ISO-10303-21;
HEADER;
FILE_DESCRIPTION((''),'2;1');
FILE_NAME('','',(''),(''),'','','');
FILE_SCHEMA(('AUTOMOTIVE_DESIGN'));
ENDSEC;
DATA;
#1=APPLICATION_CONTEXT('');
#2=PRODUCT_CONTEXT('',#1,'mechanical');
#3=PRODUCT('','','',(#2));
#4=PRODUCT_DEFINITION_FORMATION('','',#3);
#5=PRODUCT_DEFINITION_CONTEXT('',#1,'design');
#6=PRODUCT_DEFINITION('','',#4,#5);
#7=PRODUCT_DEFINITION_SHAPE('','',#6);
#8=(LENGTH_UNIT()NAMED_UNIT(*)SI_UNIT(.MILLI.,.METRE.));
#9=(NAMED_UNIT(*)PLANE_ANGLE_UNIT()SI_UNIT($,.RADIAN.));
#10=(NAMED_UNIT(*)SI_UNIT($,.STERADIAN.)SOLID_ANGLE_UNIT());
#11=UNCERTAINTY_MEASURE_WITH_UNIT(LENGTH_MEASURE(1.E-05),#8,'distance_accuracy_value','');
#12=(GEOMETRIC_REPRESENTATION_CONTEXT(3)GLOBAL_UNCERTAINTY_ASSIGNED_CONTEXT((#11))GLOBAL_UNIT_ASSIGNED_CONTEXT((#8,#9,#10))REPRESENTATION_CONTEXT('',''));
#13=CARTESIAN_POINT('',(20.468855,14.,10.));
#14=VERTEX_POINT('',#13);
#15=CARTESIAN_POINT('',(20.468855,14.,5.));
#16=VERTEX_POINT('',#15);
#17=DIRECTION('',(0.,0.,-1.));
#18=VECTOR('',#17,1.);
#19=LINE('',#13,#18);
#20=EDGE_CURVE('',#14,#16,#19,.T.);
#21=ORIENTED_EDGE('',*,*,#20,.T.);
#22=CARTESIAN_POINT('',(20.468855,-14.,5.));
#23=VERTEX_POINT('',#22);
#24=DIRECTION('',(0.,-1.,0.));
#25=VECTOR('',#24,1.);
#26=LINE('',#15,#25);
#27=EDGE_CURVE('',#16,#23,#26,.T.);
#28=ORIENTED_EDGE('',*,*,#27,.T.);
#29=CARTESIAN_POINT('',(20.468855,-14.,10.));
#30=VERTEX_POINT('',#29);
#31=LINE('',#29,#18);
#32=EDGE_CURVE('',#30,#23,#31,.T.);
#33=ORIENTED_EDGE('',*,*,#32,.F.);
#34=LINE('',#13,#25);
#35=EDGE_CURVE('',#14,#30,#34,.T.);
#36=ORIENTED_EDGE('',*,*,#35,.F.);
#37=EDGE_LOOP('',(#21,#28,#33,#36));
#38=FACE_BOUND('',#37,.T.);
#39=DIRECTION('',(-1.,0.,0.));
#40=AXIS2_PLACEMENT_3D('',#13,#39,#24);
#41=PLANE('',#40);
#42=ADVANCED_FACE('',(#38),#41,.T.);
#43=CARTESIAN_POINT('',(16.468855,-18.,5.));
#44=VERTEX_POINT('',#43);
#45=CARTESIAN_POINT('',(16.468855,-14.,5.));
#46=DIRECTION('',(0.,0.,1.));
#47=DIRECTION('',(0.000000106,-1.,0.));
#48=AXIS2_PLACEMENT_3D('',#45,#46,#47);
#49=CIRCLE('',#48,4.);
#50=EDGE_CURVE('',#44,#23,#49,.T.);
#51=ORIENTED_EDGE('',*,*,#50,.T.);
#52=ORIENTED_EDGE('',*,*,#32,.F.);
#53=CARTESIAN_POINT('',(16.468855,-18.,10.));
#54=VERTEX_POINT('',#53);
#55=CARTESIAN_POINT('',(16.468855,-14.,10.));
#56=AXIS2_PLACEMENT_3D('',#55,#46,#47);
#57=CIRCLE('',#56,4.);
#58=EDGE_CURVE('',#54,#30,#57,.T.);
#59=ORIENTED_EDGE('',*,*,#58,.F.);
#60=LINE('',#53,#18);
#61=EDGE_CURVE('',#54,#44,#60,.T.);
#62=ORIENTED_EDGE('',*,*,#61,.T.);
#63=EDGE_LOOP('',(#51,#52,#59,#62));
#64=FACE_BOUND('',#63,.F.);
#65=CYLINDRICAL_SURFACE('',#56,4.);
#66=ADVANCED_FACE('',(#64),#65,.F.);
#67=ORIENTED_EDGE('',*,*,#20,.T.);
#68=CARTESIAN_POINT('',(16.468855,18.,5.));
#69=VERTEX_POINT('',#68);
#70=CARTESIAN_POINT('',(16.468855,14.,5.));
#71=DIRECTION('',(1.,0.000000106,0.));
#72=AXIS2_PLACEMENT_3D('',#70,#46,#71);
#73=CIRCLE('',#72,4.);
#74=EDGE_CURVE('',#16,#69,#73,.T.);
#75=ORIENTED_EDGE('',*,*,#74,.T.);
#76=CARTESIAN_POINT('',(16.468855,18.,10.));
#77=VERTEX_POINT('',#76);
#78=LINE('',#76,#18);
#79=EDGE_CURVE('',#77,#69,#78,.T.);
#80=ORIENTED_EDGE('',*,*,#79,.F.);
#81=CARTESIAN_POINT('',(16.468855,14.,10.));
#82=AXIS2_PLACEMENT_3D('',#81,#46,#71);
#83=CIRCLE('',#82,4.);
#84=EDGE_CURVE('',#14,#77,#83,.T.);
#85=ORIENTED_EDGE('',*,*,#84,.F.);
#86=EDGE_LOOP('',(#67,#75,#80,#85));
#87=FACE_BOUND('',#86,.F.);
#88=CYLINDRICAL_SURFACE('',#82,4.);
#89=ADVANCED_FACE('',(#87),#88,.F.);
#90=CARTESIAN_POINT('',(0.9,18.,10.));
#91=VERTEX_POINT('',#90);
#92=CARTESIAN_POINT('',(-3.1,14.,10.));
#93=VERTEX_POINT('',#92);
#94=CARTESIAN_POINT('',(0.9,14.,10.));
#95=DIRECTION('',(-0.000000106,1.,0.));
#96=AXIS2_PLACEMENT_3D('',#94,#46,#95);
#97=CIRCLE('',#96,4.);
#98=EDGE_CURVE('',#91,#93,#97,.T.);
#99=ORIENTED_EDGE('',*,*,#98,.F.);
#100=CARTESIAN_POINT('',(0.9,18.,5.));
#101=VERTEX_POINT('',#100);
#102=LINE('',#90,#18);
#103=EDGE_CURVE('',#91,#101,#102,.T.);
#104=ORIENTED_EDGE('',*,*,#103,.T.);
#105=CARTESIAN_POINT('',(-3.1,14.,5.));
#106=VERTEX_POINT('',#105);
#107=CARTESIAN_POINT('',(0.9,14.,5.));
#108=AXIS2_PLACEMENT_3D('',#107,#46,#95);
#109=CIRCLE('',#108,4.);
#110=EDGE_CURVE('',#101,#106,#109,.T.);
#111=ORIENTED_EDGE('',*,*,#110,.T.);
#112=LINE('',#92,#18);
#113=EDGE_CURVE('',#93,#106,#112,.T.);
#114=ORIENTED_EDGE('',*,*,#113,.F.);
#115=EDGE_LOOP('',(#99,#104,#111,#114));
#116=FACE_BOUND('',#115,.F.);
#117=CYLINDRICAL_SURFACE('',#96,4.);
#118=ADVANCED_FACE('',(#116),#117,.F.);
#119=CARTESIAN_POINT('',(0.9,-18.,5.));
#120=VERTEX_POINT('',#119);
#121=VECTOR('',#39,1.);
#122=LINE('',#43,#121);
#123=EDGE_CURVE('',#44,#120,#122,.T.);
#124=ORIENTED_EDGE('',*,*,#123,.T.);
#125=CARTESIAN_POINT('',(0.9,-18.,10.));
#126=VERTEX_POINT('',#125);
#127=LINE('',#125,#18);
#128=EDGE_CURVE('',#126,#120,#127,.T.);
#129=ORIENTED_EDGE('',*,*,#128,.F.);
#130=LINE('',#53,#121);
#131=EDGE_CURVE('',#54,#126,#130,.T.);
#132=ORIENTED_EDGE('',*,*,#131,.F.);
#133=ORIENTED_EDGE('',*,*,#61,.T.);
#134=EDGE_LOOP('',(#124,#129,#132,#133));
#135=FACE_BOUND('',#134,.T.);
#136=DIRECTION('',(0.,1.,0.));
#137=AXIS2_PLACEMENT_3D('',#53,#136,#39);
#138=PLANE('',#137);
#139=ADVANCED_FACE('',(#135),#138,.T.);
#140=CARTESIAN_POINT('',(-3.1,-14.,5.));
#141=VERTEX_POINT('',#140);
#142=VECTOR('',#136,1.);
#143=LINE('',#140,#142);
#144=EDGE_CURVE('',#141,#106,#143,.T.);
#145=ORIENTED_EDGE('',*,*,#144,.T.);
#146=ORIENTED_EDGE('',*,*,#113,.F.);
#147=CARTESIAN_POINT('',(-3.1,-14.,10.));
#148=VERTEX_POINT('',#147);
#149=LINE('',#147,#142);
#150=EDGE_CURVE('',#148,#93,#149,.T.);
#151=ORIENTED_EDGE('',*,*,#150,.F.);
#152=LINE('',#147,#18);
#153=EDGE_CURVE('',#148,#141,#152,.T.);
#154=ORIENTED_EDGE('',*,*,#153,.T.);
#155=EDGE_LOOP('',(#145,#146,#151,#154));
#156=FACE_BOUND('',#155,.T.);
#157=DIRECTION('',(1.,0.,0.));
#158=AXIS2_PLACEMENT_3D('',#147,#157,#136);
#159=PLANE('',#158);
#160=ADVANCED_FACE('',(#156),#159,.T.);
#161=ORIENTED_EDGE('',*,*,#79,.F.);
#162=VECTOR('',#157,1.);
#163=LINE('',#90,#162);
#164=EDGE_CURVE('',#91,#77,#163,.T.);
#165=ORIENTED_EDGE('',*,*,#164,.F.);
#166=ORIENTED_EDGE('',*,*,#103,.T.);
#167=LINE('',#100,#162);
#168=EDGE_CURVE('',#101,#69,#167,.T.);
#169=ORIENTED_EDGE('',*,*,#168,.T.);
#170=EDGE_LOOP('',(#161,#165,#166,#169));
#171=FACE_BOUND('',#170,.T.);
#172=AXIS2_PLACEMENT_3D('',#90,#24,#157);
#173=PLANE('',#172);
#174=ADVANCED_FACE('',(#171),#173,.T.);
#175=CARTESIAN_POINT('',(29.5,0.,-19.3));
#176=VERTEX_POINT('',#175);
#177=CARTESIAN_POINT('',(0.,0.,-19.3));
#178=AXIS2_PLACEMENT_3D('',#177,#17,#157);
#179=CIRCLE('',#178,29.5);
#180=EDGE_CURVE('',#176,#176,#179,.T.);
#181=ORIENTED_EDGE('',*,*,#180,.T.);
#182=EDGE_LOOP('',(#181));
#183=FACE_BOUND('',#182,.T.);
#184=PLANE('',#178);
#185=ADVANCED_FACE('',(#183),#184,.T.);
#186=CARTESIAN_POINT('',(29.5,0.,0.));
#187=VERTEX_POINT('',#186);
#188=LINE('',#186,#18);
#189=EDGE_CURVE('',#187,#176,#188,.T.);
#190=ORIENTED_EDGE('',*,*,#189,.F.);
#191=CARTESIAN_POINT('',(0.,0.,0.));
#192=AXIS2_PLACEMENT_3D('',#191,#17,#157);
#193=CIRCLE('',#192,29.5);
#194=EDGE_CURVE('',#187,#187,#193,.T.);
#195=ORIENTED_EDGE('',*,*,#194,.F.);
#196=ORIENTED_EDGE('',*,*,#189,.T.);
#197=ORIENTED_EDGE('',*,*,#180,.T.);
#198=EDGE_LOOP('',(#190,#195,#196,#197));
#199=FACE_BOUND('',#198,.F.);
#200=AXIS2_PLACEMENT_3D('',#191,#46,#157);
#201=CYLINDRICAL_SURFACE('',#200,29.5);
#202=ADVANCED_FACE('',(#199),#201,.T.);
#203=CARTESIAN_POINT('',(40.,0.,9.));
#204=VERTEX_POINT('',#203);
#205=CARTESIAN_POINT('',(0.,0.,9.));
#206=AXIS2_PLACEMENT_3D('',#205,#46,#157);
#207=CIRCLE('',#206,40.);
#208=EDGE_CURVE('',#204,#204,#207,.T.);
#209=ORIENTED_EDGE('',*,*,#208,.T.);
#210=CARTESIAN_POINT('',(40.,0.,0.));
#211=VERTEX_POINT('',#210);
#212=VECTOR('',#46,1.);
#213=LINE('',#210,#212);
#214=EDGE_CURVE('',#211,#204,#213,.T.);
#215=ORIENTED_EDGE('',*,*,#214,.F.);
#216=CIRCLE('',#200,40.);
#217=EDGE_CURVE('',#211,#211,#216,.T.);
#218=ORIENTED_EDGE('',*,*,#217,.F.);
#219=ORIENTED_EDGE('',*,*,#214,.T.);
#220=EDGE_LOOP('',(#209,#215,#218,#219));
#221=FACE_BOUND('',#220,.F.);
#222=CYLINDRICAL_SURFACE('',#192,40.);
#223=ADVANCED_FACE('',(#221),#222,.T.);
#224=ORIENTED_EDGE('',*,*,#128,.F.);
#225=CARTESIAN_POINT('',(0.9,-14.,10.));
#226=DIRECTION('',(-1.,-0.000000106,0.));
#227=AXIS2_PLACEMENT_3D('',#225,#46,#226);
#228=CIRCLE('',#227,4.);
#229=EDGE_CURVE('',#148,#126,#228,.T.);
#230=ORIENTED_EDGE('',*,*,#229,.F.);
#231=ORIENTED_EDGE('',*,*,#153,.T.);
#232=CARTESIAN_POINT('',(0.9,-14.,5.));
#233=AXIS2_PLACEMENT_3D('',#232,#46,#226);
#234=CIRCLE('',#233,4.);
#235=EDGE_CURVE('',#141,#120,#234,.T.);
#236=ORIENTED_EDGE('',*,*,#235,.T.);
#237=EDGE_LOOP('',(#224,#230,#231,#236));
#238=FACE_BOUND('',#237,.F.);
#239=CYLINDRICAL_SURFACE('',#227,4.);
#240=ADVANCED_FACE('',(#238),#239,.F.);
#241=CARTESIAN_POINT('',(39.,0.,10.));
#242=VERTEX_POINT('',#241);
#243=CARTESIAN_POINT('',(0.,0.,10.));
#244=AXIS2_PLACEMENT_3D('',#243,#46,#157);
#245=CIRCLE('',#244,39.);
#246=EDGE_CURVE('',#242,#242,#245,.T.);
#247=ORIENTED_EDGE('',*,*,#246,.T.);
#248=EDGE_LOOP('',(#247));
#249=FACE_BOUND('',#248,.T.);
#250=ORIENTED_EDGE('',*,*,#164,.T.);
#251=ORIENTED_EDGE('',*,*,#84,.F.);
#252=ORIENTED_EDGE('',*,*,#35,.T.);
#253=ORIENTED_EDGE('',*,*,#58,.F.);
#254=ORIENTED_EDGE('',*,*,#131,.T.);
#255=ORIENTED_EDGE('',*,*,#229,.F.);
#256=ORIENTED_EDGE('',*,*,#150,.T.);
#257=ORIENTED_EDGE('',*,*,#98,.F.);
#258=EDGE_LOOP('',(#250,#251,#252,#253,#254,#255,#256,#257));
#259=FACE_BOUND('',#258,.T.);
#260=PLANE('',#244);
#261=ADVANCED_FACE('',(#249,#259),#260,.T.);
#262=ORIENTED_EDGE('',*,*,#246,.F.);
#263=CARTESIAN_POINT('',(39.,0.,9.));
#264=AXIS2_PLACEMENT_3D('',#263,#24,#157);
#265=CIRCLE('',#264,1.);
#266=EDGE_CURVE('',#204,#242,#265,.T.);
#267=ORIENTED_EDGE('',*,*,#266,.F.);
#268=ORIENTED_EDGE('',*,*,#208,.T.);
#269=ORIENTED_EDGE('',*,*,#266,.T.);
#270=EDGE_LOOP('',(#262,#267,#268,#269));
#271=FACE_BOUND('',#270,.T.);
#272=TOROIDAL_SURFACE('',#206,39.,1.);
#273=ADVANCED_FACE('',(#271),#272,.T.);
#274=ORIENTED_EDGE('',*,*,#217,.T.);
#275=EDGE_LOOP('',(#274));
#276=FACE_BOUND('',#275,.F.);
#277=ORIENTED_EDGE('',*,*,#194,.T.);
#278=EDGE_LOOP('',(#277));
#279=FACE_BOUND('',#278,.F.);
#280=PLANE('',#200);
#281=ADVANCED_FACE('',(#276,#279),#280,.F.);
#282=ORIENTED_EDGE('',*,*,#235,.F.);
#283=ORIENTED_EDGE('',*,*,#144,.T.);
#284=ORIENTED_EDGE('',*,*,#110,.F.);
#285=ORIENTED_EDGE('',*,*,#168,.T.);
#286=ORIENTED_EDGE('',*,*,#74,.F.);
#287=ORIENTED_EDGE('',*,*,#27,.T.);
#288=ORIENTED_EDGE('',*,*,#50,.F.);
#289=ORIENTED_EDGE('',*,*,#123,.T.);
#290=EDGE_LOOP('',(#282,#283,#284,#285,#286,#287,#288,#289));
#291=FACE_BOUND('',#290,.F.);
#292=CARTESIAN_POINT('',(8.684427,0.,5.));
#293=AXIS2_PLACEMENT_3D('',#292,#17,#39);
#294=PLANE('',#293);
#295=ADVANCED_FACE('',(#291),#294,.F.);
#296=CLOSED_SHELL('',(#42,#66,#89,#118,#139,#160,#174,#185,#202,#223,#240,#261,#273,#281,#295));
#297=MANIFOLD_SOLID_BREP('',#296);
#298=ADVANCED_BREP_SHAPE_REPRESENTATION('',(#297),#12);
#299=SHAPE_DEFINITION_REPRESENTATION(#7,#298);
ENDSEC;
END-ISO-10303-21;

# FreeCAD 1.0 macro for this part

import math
import FreeCAD as App
import Part
import Sketcher

V = App.Vector


def edges_at(feature, points):
    """Names of the edges that pass closest to the given points."""
    edges = feature.Shape.Edges
    near = lambda p: min(range(len(edges)), key=lambda i: edges[i].distToShape(Part.Vertex(*p))[0])
    return sorted({f"Edge{near(p) + 1}" for p in points})

doc = App.newDocument("Part")
body = doc.addObject("PartDesign::Body", "Body")

# Sketch on XY plane
sketch1 = body.newObject("Sketcher::SketchObject", "Sketch")
sketch1.AttachmentSupport = (doc.getObject("XY_Plane"), [""])
sketch1.MapMode = "FlatFace"
sketch1.addGeometry(Part.Circle(V(0, 0, 0), V(0, 0, 1), 40), False)
sketch1.addConstraint([
    Sketcher.Constraint("Coincident", 0, 3, -1, 1),
    Sketcher.Constraint("Diameter", 0, 80.0),
])
pad1 = body.newObject("PartDesign::Pad", "Pad")
pad1.Profile = sketch1
pad1.Length = 10
doc.recompute()

fillet = body.newObject("PartDesign::Fillet", "Fillet")
fillet.Base = (pad1, edges_at(pad1, [(-40, 0, 10)]))
fillet.Radius = 1

# Sketch on XY plane
sketch2 = body.newObject("Sketcher::SketchObject", "Sketch001")
sketch2.AttachmentSupport = (doc.getObject("XY_Plane"), [""])
sketch2.MapMode = "FlatFace"
sketch2.addGeometry(Part.Circle(V(0, 0, 0), V(0, 0, 1), 30), False)
sketch2.addConstraint([
    Sketcher.Constraint("Coincident", 0, 3, -1, 1),
    Sketcher.Constraint("Diameter", 0, 59.0),
])
pad2 = body.newObject("PartDesign::Pad", "Pad001")
pad2.Profile = sketch2
pad2.Length = 19.3
pad2.Reversed = True

# Sketch on XY plane
sketch3 = body.newObject("Sketcher::SketchObject", "Sketch002")
sketch3.AttachmentSupport = (doc.getObject("XY_Plane"), [""])
sketch3.MapMode = "FlatFace"
sketch3.AttachmentOffset = App.Placement(V(0, 0, 10), App.Rotation())
sketch3.addGeometry([
    Part.LineSegment(V(16.5, 18, 0), V(0.9, 18, 0)),  # 0
    Part.ArcOfCircle(Part.Circle(V(0.9, 14, 0), V(0, 0, 1), 4), math.radians(90), math.radians(180)),  # 1
    Part.LineSegment(V(-3.1, 14, 0), V(-3.1, -14, 0)),  # 2
    Part.ArcOfCircle(Part.Circle(V(0.9, -14, 0), V(0, 0, 1), 4), math.radians(-180), math.radians(-90)),  # 3
    Part.LineSegment(V(0.9, -18, 0), V(16.5, -18, 0)),  # 4
    Part.ArcOfCircle(Part.Circle(V(16.5, -14, 0), V(0, 0, 1), 4), math.radians(-90), math.radians(0)),  # 5
    Part.LineSegment(V(20.5, -14, 0), V(20.5, 14, 0)),  # 6
    Part.ArcOfCircle(Part.Circle(V(16.5, 14, 0), V(0, 0, 1), 4), math.radians(0), math.radians(90)),  # 7
], False)
sketch3.addConstraint([
    Sketcher.Constraint("Tangent", 0, 2, 1, 1),
    Sketcher.Constraint("Tangent", 1, 2, 2, 1),
    Sketcher.Constraint("Tangent", 2, 2, 3, 1),
    Sketcher.Constraint("Tangent", 3, 2, 4, 1),
    Sketcher.Constraint("Tangent", 4, 2, 5, 1),
    Sketcher.Constraint("Tangent", 5, 2, 6, 1),
    Sketcher.Constraint("Tangent", 6, 2, 7, 1),
    Sketcher.Constraint("Tangent", 7, 2, 0, 1),
    Sketcher.Constraint("Horizontal", 0),
    Sketcher.Constraint("Vertical", 2),
    Sketcher.Constraint("Horizontal", 4),
    Sketcher.Constraint("Vertical", 6),
    Sketcher.Constraint("Equal", 1, 3),
    Sketcher.Constraint("Equal", 3, 5),
    Sketcher.Constraint("Equal", 5, 7),
    Sketcher.Constraint("Radius", 1, 4.0),
    Sketcher.Constraint("DistanceY", 2, 2, 2, 1, 28.0),
    Sketcher.Constraint("DistanceY", -1, 1, 1, 3, 14.0),
    Sketcher.Constraint("DistanceX", -1, 1, 1, 3, 0.9),
    Sketcher.Constraint("DistanceX", 0, 2, 0, 1, 15.568855),
])
pocket1 = body.newObject("PartDesign::Pocket", "Pocket")
pocket1.Profile = sketch3
pocket1.Length = 5

doc.recompute()
